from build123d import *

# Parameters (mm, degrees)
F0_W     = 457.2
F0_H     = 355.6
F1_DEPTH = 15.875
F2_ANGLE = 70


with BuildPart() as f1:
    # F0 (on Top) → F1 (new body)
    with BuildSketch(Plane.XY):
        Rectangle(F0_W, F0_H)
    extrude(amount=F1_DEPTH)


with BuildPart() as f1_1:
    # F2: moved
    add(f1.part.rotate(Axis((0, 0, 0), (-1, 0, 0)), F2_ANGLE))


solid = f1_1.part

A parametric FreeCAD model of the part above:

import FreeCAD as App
import Part
import Sketcher
Q = App.Units.Quantity

doc = App.newDocument("Part")
params = doc.addObject("Spreadsheet::Sheet", "Params")
for row, (alias, value) in enumerate([
    ("sketch1_width", "18 in"),
    ("sketch1_height", "14 in"),
    ("pad1_length", "0.625 in"),
], start=1):
    params.set(f"A{row}", alias)
    params.set(f"B{row}", "=" + value)
    params.setAlias(f"B{row}", alias)

body = doc.addObject("PartDesign::Body", "Body")

sketch1 = body.newObject("Sketcher::SketchObject", "Sketch")
sketch1.AttachmentSupport = (doc.getObject("XY_Plane"), [""])
sketch1.MapMode = "FlatFace"
sketch1.addGeometry([
    Part.LineSegment(App.Vector(-229, 178, 0), App.Vector(-229, -178, 0)),
    Part.LineSegment(App.Vector(-229, -178, 0), App.Vector(229, -178, 0)),
    Part.LineSegment(App.Vector(229, -178, 0), App.Vector(229, 178, 0)),
    Part.LineSegment(App.Vector(229, 178, 0), App.Vector(-229, 178, 0)),
], False)
sketch1.addConstraint([
    Sketcher.Constraint("Coincident", 0, 2, 1, 1),
    Sketcher.Constraint("Coincident", 1, 2, 2, 1),
    Sketcher.Constraint("Coincident", 2, 2, 3, 1),
    Sketcher.Constraint("Coincident", 3, 2, 0, 1),
    Sketcher.Constraint("Vertical", 0),
    Sketcher.Constraint("Horizontal", 1),
    Sketcher.Constraint("Vertical", 2),
    Sketcher.Constraint("Horizontal", 3),
    Sketcher.Constraint("Symmetric", 0, 2, 2, 2, -1, 1),
    Sketcher.Constraint("DistanceX", 1, 1, 1, 2, Q("18 in")),
    Sketcher.Constraint("DistanceY", 0, 2, 0, 1, Q("14 in")),
])
sketch1.setExpression("Constraints[9]", "Params.sketch1_width")
sketch1.setExpression("Constraints[10]", "Params.sketch1_height")
pad1 = body.newObject("PartDesign::Pad", "Pad")
pad1.Profile = sketch1
pad1.setExpression("Length", "Params.pad1_length")
body2 = doc.addObject("PartDesign::Body", "Body001")
doc.recompute()

body.Placement = App.Placement(App.Vector(0, 0, 0), App.Rotation(App.Vector(-1, 0, 0), 70))
boolean = body2.newObject("PartDesign::Boolean", "Boolean")
boolean.Type = "Fuse"
boolean.addObjects([body])

doc.recompute()
